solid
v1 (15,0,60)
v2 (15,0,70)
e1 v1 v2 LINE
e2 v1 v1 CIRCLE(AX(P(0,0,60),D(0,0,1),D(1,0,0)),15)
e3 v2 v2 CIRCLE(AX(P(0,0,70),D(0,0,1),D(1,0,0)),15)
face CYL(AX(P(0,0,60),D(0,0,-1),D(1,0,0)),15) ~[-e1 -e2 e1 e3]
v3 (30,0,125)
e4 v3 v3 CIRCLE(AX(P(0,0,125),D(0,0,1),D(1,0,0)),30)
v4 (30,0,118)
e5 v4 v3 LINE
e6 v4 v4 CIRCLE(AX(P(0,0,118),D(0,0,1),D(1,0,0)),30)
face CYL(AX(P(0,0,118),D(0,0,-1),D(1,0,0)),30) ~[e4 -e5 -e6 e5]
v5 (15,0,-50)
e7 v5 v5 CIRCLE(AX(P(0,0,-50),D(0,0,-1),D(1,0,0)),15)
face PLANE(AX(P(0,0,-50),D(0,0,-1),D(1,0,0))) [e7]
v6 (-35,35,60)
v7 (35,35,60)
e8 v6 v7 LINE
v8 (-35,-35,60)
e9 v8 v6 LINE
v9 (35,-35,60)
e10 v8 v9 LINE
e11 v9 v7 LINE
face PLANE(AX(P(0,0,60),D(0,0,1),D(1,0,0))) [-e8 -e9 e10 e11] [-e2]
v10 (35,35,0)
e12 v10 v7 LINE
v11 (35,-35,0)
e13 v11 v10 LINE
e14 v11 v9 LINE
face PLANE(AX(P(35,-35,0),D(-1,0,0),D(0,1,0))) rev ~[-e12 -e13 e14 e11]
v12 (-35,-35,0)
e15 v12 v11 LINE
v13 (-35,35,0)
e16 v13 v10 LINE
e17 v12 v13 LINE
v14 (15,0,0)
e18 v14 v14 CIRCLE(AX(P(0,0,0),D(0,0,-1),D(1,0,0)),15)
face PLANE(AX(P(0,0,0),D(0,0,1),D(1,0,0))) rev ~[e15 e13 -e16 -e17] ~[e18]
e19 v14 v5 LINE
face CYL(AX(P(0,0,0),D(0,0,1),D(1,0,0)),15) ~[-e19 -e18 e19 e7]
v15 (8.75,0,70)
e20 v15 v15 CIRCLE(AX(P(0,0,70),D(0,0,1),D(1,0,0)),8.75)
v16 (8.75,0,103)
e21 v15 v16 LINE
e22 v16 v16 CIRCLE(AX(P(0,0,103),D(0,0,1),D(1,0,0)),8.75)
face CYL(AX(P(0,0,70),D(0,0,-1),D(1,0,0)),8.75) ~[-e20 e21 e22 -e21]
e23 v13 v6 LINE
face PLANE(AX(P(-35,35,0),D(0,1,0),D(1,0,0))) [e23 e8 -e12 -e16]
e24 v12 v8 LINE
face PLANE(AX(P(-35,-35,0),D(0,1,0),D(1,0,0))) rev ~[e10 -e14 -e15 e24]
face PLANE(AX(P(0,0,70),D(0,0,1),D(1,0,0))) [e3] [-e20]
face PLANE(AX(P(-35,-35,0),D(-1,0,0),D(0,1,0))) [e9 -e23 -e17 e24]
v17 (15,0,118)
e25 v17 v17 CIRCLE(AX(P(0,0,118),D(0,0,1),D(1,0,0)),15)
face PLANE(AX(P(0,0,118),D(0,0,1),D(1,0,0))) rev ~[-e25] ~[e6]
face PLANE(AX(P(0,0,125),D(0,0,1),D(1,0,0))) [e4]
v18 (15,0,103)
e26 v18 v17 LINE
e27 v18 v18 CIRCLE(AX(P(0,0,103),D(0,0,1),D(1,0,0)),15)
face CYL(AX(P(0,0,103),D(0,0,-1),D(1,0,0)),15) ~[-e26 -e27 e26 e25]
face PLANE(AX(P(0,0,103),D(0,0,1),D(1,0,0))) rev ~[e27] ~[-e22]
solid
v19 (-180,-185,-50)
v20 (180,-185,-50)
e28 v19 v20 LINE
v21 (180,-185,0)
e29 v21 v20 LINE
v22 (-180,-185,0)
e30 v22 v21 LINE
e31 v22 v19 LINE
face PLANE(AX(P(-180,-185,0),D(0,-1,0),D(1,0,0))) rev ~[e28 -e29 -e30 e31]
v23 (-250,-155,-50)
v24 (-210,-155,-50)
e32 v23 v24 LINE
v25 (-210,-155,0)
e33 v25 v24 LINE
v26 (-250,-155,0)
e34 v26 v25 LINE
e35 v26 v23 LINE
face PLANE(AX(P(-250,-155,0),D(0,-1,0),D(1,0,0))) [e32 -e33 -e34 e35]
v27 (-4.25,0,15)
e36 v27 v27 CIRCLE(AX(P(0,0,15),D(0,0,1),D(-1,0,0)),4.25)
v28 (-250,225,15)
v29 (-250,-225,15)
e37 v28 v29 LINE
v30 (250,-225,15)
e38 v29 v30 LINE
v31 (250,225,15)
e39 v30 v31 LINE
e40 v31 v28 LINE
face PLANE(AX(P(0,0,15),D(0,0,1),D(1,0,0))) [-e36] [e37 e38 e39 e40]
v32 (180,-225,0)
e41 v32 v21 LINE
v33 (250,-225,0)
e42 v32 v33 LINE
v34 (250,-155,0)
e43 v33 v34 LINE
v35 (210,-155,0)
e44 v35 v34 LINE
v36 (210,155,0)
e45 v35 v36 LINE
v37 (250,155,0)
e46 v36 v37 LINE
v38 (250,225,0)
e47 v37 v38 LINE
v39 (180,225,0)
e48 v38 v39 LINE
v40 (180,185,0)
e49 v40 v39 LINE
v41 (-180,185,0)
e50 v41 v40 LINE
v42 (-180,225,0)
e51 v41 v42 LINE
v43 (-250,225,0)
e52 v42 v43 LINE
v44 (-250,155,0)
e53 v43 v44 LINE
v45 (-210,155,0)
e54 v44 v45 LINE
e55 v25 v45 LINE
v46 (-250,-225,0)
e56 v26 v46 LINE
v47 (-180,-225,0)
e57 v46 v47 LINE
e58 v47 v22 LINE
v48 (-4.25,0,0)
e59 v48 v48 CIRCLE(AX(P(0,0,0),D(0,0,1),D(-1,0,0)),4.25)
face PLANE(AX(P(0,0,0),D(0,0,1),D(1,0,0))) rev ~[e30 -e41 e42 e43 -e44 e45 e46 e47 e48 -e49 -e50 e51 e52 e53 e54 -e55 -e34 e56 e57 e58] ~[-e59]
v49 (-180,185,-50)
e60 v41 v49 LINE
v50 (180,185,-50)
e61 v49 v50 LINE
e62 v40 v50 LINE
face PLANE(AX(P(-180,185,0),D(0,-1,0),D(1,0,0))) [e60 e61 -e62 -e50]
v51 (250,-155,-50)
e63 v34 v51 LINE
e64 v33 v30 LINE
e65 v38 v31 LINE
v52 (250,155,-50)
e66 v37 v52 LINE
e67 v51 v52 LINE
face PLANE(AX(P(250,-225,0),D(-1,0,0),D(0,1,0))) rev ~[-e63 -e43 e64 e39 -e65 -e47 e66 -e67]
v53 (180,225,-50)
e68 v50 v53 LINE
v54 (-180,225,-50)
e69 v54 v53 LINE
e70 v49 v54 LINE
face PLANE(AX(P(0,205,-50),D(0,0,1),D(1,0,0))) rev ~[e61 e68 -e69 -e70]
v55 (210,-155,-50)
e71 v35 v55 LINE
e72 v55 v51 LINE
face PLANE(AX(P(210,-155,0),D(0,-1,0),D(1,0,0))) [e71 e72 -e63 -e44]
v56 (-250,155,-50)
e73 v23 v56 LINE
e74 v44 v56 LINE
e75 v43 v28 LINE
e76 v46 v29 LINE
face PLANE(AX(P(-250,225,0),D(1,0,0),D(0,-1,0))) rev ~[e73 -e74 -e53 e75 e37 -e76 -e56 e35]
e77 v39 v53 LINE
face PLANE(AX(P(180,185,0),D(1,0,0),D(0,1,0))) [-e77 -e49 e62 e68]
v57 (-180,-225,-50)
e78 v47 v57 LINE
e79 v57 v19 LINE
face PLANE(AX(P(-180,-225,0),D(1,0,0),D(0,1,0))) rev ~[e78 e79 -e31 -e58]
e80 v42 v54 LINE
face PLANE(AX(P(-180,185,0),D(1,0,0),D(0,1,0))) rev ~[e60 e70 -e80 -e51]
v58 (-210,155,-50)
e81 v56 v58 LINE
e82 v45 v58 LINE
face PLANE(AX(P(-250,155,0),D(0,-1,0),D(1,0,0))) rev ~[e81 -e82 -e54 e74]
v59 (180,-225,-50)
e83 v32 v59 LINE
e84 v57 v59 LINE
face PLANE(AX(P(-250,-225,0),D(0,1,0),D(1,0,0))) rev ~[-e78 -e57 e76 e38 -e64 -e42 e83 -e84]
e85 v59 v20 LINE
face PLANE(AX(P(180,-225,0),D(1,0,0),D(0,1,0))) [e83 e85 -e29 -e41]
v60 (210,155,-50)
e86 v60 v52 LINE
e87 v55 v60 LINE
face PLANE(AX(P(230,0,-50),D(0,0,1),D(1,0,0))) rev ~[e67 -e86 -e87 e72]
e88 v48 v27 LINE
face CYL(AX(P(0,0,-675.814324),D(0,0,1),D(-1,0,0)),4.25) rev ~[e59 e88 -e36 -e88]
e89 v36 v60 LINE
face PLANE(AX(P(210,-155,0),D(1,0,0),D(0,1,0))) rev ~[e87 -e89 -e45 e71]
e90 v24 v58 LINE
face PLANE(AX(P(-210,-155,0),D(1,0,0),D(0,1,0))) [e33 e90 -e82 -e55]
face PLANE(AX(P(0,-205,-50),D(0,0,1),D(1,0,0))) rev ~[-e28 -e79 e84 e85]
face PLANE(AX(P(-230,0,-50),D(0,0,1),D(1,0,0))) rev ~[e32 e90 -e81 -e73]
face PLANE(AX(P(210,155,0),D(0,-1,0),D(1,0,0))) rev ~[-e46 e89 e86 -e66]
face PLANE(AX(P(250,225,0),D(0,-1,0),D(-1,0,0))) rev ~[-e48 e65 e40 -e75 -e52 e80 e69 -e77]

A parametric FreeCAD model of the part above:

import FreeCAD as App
import Part
import Sketcher

V = App.Vector
Q = App.Units.Quantity


def add_polygon(sketch, points):
    """Adds a closed chain of lines whose ends are joined by coincident constraints."""
    first, n = sketch.GeometryCount, len(points)
    for a, b in zip(points, points[1:] + points[:1]):
        sketch.addGeometry(Part.LineSegment(App.Vector(*a, 0), App.Vector(*b, 0)), False)
    for i in range(n):
        sketch.addConstraint(Sketcher.Constraint("Coincident", first + i, 2, first + (i + 1) % n, 1))

doc = App.newDocument("Part")
params = doc.addObject("Spreadsheet::Sheet", "Params")
for row, (alias, value) in enumerate([
    ("sketch1_width", "500 mm"),
    ("sketch1_height", "450 mm"),
    ("pad1_length", "15 mm"),
    ("sketch2_width", "360 mm"),
    ("sketch2_width2", "40 mm"),
    ("sketch2_height", "310 mm"),
    ("pad2_length", "50 mm"),
    ("sketch3_diameter", "8.5 mm"),
    ("hole_diameter", "8.5 mm"),
    ("sketch4_width", "70 mm"),
    ("pad3_length", "60 mm"),
    ("sketch5_diameter", "30 mm"),
    ("pad4_length", "10 mm"),
    ("sketch6_diameter", "17.5 mm"),
    ("pad5_length", "33 mm"),
    ("sketch7_diameter", "30 mm"),
    ("pad6_length", "15 mm"),
    ("sketch8_diameter", "60 mm"),
    ("pad7_length", "7 mm"),
    ("sketch9_diameter", "30 mm"),
    ("pad8_length", "50 mm"),
], start=1):
    params.set(f"A{row}", alias)
    params.set(f"B{row}", "=" + value)
    params.setAlias(f"B{row}", alias)

body = doc.addObject("PartDesign::Body", "Body")

sketch1 = doc.addObject("Sketcher::SketchObject", "Sketch")
body.addObject(sketch1)
sketch1.AttachmentSupport = (doc.XY_Plane, [""])
sketch1.MapMode = "FlatFace"
add_polygon(sketch1, [(250, -225), (250, 225), (-250, 225), (-250, -225)])
sketch1.addConstraint([
    Sketcher.Constraint("Vertical", 0),
    Sketcher.Constraint("Horizontal", 1),
    Sketcher.Constraint("Vertical", 2),
    Sketcher.Constraint("Horizontal", 3),
    Sketcher.Constraint("Symmetric", 0, 2, 2, 2, -1, 1),
    Sketcher.Constraint("DistanceX", 1, 2, 1, 1, Q("500 mm")),
    Sketcher.Constraint("DistanceY", 0, 1, 0, 2, Q("450 mm")),
])
sketch1.setExpression("Constraints[9]", "Params.sketch1_width")
sketch1.setExpression("Constraints[10]", "Params.sketch1_height")
pad1 = doc.addObject("PartDesign::Pad", "Pad")
body.addObject(pad1)
pad1.Profile = sketch1
pad1.setExpression("Length", "Params.pad1_length")

sketch2 = doc.addObject("Sketcher::SketchObject", "Sketch001")
body.addObject(sketch2)
sketch2.AttachmentSupport = (doc.XY_Plane, [""])
sketch2.MapMode = "FlatFace"
add_polygon(sketch2, [(-180, -185), (-180, -225), (180, -225), (180, -185)])
add_polygon(sketch2, [(-250, 155), (-250, -155), (-210, -155), (-210, 155)])
add_polygon(sketch2, [(-180, 225), (-180, 185), (180, 185), (180, 225)])
add_polygon(sketch2, [(210, 155), (210, -155), (250, -155), (250, 155)])
sketch2.addConstraint([
    Sketcher.Constraint("Vertical", 0),
    Sketcher.Constraint("Horizontal", 1),
    Sketcher.Constraint("Vertical", 2),
    Sketcher.Constraint("Horizontal", 3),
    Sketcher.Constraint("Vertical", 4),
    Sketcher.Constraint("Horizontal", 5),
    Sketcher.Constraint("Vertical", 6),
    Sketcher.Constraint("Horizontal", 7),
    Sketcher.Constraint("Vertical", 8),
    Sketcher.Constraint("Horizontal", 9),
    Sketcher.Constraint("Vertical", 10),
    Sketcher.Constraint("Horizontal", 11),
    Sketcher.Constraint("Vertical", 12),
    Sketcher.Constraint("Horizontal", 13),
    Sketcher.Constraint("Vertical", 14),
    Sketcher.Constraint("Horizontal", 15),
    Sketcher.Constraint("Symmetric", 2, 2, 8, 2, -1, 1),
    Sketcher.Constraint("Symmetric", 0, 2, 10, 2, -1, 1),
    Sketcher.Constraint("Symmetric", 6, 2, 12, 2, -1, 1),
    Sketcher.Constraint("Symmetric", 4, 2, 14, 2, -1, 1),
    Sketcher.Constraint("Horizontal", 5, 2, 12, 2),
    Sketcher.Constraint("Vertical", 3, 2, 8, 2),
    Sketcher.Constraint("Equal", 15, 0),
    Sketcher.Constraint("DistanceX", 1, 1, 1, 2, Q("360 mm")),
    Sketcher.Constraint("DistanceX", 5, 1, 5, 2, Q("40 mm")),
    Sketcher.Constraint("DistanceY", 4, 2, 4, 1, Q("310 mm")),
    Sketcher.Constraint("DistanceY", 0, 2, -1, 1, Q("225 mm")),
    Sketcher.Constraint("DistanceX", 4, 2, -1, 1, Q("250 mm")),
])
sketch2.setExpression("Constraints[39]", "Params.sketch2_width")
sketch2.setExpression("Constraints[40]", "Params.sketch2_width2")
sketch2.setExpression("Constraints[41]", "Params.sketch2_height")
pad2 = doc.addObject("PartDesign::Pad", "Pad001")
body.addObject(pad2)
pad2.Profile = sketch2
pad2.setExpression("Length", "Params.pad2_length")
pad2.Reversed = True

sketch3 = doc.addObject("Sketcher::SketchObject", "Sketch002")
body.addObject(sketch3)
sketch3.AttachmentSupport = (doc.XY_Plane, [""])
sketch3.MapMode = "FlatFace"
sketch3.addGeometry(Part.Circle(V(0, 0, 0), V(0, 0, 1), 4.2), False)
sketch3.addConstraint([
    Sketcher.Constraint("Coincident", 0, 3, -1, 1),
    Sketcher.Constraint("Diameter", 0, Q("8.5 mm")),
])
sketch3.setExpression("Constraints[1]", "Params.sketch3_diameter")
doc.recompute()
hole = doc.addObject("PartDesign::Hole", "Hole")
body.addObject(hole)
hole.Profile = sketch3
hole.ThreadType = "None"
hole.setExpression("Diameter", "Params.hole_diameter")
hole.DepthType = "ThroughAll"
hole.Reversed = True
body2 = doc.addObject("PartDesign::Body", "Body001")

sketch4 = doc.addObject("Sketcher::SketchObject", "Sketch003")
body2.addObject(sketch4)
sketch4.AttachmentSupport = (doc.getObject("XY_Plane001"), [""])
sketch4.MapMode = "FlatFace"
add_polygon(sketch4, [(-35, 35), (-35, -35), (35, -35), (35, 35)])
sketch4.addConstraint([
    Sketcher.Constraint("Vertical", 0),
    Sketcher.Constraint("Horizontal", 1),
    Sketcher.Constraint("Vertical", 2),
    Sketcher.Constraint("Horizontal", 3),
    Sketcher.Constraint("Symmetric", 0, 2, 2, 2, -1, 1),
    Sketcher.Constraint("Equal", 3, 0),
    Sketcher.Constraint("DistanceX", 1, 1, 1, 2, Q("70 mm")),
])
sketch4.setExpression("Constraints[10]", "Params.sketch4_width")
pad3 = doc.addObject("PartDesign::Pad", "Pad002")
body2.addObject(pad3)
pad3.Profile = sketch4
pad3.setExpression("Length", "Params.pad3_length")

sketch5 = doc.addObject("Sketcher::SketchObject", "Sketch004")
body2.addObject(sketch5)
sketch5.AttachmentSupport = (doc.getObject("XY_Plane001"), [""])
sketch5.MapMode = "FlatFace"
sketch5.AttachmentOffset = App.Placement(V(0, 0, 60), App.Rotation())
sketch5.addGeometry(Part.Circle(V(0, 0, 0), V(0, 0, 1), 15), False)
sketch5.addConstraint([
    Sketcher.Constraint("Coincident", 0, 3, -1, 1),
    Sketcher.Constraint("Diameter", 0, Q("30 mm")),
])
sketch5.setExpression("Constraints[1]", "Params.sketch5_diameter")
pad4 = doc.addObject("PartDesign::Pad", "Pad003")
body2.addObject(pad4)
pad4.Profile = sketch5
pad4.setExpression("Length", "Params.pad4_length")

sketch6 = doc.addObject("Sketcher::SketchObject", "Sketch005")
body2.addObject(sketch6)
sketch6.AttachmentSupport = (doc.getObject("XY_Plane001"), [""])
sketch6.MapMode = "FlatFace"
sketch6.AttachmentOffset = App.Placement(V(0, 0, 70), App.Rotation())
sketch6.addGeometry(Part.Circle(V(0, 0, 0), V(0, 0, 1), 9), False)
sketch6.addConstraint([
    Sketcher.Constraint("Coincident", 0, 3, -1, 1),
    Sketcher.Constraint("Diameter", 0, Q("17.5 mm")),
])
sketch6.setExpression("Constraints[1]", "Params.sketch6_diameter")
pad5 = doc.addObject("PartDesign::Pad", "Pad004")
body2.addObject(pad5)
pad5.Profile = sketch6
pad5.setExpression("Length", "Params.pad5_length")

sketch7 = doc.addObject("Sketcher::SketchObject", "Sketch006")
body2.addObject(sketch7)
sketch7.AttachmentSupport = (doc.getObject("XY_Plane001"), [""])
sketch7.MapMode = "FlatFace"
sketch7.AttachmentOffset = App.Placement(V(0, 0, 103), App.Rotation())
sketch7.addGeometry(Part.Circle(V(0, 0, 0), V(0, 0, 1), 15), False)
sketch7.addConstraint([
    Sketcher.Constraint("Coincident", 0, 3, -1, 1),
    Sketcher.Constraint("Diameter", 0, Q("30 mm")),
])
sketch7.setExpression("Constraints[1]", "Params.sketch7_diameter")
pad6 = doc.addObject("PartDesign::Pad", "Pad005")
body2.addObject(pad6)
pad6.Profile = sketch7
pad6.setExpression("Length", "Params.pad6_length")

sketch8 = doc.addObject("Sketcher::SketchObject", "Sketch007")
body2.addObject(sketch8)
sketch8.AttachmentSupport = (doc.getObject("XY_Plane001"), [""])
sketch8.MapMode = "FlatFace"
sketch8.AttachmentOffset = App.Placement(V(0, 0, 118), App.Rotation())
sketch8.addGeometry(Part.Circle(V(0, 0, 0), V(0, 0, 1), 30), False)
sketch8.addConstraint([
    Sketcher.Constraint("Coincident", 0, 3, -1, 1),
    Sketcher.Constraint("Diameter", 0, Q("60 mm")),
])
sketch8.setExpression("Constraints[1]", "Params.sketch8_diameter")
pad7 = doc.addObject("PartDesign::Pad", "Pad006")
body2.addObject(pad7)
pad7.Profile = sketch8
pad7.setExpression("Length", "Params.pad7_length")

sketch9 = doc.addObject("Sketcher::SketchObject", "Sketch008")
body2.addObject(sketch9)
sketch9.AttachmentSupport = (doc.getObject("XY_Plane001"), [""])
sketch9.MapMode = "FlatFace"
sketch9.addGeometry(Part.Circle(V(0, 0, 0), V(0, 0, 1), 15), False)
sketch9.addConstraint([
    Sketcher.Constraint("Coincident", 0, 3, -1, 1),
    Sketcher.Constraint("Diameter", 0, Q("30 mm")),
])
sketch9.setExpression("Constraints[1]", "Params.sketch9_diameter")
pad8 = doc.addObject("PartDesign::Pad", "Pad007")
body2.addObject(pad8)
pad8.Profile = sketch9
pad8.setExpression("Length", "Params.pad8_length")
pad8.Reversed = True

doc.recompute()
